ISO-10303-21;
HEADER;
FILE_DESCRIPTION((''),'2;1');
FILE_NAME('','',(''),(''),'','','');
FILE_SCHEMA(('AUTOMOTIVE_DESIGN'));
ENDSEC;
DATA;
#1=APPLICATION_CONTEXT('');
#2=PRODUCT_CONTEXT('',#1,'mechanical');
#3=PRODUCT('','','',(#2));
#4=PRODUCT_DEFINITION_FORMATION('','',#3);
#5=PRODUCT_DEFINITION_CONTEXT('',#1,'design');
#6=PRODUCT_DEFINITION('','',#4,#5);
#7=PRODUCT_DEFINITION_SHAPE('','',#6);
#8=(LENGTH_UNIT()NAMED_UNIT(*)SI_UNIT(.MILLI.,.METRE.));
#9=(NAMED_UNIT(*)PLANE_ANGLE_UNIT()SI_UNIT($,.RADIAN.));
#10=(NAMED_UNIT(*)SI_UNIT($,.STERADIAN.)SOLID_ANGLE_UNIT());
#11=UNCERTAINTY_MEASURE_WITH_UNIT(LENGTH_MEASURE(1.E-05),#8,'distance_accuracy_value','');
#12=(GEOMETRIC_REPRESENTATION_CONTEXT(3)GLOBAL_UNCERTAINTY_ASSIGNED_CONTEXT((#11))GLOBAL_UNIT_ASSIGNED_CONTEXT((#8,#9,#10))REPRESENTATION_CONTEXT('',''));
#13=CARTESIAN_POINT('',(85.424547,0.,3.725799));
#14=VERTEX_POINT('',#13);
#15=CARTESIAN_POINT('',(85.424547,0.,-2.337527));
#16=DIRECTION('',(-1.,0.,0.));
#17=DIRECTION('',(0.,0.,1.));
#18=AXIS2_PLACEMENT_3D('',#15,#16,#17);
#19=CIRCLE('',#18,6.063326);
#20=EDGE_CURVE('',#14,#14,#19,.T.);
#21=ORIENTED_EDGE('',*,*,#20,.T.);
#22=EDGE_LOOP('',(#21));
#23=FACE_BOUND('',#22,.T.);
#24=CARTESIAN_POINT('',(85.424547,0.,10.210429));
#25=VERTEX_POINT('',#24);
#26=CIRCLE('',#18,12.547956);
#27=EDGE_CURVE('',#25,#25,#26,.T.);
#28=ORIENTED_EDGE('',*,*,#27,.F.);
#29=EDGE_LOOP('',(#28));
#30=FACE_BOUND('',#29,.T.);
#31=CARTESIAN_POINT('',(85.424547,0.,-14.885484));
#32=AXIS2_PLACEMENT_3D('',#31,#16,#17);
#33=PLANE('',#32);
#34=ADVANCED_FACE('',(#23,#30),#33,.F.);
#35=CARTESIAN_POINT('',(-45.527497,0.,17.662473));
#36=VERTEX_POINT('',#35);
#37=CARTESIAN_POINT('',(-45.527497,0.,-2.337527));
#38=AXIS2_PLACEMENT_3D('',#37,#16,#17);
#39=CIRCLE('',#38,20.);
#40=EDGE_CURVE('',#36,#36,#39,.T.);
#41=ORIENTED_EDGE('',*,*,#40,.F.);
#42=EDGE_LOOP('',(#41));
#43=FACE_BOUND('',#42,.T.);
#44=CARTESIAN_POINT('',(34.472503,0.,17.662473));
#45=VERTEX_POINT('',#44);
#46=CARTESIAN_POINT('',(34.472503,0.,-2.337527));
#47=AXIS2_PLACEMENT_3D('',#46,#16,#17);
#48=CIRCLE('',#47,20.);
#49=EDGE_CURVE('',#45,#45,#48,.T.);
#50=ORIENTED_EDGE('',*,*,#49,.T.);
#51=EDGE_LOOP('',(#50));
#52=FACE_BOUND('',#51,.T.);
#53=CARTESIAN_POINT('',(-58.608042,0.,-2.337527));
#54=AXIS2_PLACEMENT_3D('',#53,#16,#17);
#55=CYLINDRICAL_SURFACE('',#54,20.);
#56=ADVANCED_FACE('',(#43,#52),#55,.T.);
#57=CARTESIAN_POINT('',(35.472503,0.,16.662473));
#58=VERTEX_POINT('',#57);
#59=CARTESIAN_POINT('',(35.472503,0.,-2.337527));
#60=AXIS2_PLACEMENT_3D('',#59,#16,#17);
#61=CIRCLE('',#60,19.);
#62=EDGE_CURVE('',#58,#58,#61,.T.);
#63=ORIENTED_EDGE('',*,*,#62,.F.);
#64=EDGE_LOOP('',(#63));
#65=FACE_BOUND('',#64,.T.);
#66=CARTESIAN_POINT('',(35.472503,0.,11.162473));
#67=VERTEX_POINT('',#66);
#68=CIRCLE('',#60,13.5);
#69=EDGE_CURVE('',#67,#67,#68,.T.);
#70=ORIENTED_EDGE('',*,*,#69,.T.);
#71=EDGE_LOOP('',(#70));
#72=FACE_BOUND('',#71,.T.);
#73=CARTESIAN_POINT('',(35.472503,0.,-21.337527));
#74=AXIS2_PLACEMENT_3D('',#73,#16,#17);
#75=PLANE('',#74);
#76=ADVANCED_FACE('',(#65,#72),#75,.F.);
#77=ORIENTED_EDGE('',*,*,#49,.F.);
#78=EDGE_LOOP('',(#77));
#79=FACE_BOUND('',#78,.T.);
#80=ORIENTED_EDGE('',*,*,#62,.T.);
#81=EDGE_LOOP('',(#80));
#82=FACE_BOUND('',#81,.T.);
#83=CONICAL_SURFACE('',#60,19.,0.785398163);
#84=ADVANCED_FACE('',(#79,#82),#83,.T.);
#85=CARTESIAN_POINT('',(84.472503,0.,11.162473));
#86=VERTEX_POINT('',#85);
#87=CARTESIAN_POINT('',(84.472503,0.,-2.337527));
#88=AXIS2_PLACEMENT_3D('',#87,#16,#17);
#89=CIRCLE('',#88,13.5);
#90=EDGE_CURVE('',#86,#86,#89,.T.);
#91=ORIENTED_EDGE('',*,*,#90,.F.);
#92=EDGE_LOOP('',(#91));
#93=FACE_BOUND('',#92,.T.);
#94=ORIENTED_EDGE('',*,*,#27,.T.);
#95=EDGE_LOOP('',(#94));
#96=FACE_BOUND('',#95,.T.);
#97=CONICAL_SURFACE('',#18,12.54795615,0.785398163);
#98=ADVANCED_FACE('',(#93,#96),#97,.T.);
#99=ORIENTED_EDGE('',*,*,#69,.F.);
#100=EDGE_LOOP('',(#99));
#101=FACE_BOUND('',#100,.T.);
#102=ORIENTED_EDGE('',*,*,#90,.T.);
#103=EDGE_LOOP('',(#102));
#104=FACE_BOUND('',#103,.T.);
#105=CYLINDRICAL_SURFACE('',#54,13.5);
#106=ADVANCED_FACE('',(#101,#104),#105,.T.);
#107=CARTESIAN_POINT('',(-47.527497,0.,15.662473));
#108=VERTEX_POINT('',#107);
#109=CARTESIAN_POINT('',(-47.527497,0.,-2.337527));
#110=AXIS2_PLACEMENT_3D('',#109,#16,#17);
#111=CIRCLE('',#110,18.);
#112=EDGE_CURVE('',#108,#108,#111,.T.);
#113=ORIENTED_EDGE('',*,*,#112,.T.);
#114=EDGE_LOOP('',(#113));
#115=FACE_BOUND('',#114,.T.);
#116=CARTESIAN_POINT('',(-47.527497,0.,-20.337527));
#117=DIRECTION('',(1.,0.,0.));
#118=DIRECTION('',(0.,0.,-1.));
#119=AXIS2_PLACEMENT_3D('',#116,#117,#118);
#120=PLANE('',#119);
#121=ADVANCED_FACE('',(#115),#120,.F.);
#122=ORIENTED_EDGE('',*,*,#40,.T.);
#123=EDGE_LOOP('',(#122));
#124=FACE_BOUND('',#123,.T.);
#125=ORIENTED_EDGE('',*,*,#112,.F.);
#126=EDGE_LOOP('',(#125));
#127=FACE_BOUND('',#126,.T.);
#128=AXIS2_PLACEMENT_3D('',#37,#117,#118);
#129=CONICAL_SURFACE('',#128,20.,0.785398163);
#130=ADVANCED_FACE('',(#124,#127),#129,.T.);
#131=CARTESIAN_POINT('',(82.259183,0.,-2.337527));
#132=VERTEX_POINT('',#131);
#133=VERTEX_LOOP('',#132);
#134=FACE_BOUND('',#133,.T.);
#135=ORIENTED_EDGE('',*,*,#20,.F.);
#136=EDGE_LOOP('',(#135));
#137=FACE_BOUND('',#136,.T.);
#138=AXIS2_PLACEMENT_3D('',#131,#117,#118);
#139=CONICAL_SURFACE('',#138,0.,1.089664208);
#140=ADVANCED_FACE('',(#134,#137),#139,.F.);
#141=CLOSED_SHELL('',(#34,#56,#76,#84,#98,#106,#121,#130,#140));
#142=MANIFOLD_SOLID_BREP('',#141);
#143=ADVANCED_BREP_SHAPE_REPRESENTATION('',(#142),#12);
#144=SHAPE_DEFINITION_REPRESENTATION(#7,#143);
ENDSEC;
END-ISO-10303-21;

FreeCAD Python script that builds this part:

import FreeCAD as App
import Part
import Sketcher

V = App.Vector
Q = App.Units.Quantity


def add_polygon(sketch, points):
    """Adds a closed chain of lines whose ends are joined by coincident constraints."""
    first, n = sketch.GeometryCount, len(points)
    for a, b in zip(points, points[1:] + points[:1]):
        sketch.addGeometry(Part.LineSegment(App.Vector(*a, 0), App.Vector(*b, 0)), False)
    for i in range(n):
        sketch.addConstraint(Sketcher.Constraint("Coincident", first + i, 2, first + (i + 1) % n, 1))

doc = App.newDocument("Part")
body = doc.addObject("PartDesign::Body", "Body")

# Sketch on XZ plane
sketch1 = doc.addObject("Sketcher::SketchObject", "Sketch")
body.addObject(sketch1)
sketch1.AttachmentSupport = (doc.XZ_Plane, [""])
sketch1.MapMode = "FlatFace"
add_polygon(sketch1, [(34.5, -22.3), (-45.5, -22.3), (-47.5, -20.3), (-47.5, -2.3), (82.3, -2.3), (85.4, -8.4), (85.4, -14.9), (84.5, -15.8), (35.5, -15.8), (35.5, -21.3)])  # lines 0-9
sketch1.addGeometry(Part.LineSegment(V(-47.5, -2.3, 0), V(85.4, -2.3, 0)), True)  # axis
sketch1.addConstraint([
    Sketcher.Constraint("Horizontal", 0),
    Sketcher.Constraint("Vertical", 2),
    Sketcher.Constraint("Horizontal", 3),
    Sketcher.Constraint("Vertical", 5),
    Sketcher.Constraint("Horizontal", 7),
    Sketcher.Constraint("Vertical", 8),
    Sketcher.Constraint("Horizontal", 10),
    Sketcher.Constraint("Coincident", 10, 1, 2, 2),
    Sketcher.Constraint("Perpendicular", 1, 6),
    Sketcher.Constraint("Parallel", 6, 9),
    Sketcher.Constraint("Vertical", 5, 2, 10, 2),
    Sketcher.Constraint("DistanceX", 0, 2, 0, 1, 80.0),
    Sketcher.Constraint("DistanceX", 7, 2, 7, 1, 49.0),
    Sketcher.Constraint("DistanceY", 2, 1, 2, 2, 18.0),
    Sketcher.Constraint("Angle", 1, Q("135 deg")),
    Sketcher.Constraint("DistanceY", 8, 2, 8, 1, 5.5),
    Sketcher.Constraint("DistanceX", 1, 2, 0, 2, 2.0),
    Sketcher.Constraint("DistanceX", 0, 2, 6, 2, 130.0),
    Sketcher.Constraint("DistanceX", 3, 1, 3, 2, 129.78668),
    Sketcher.Constraint("DistanceY", 5, 2, 5, 1, 6.48463),
    Sketcher.Constraint("DistanceX", 10, 1, 10, 2, 132.952044),
    Sketcher.Constraint("DistanceX", 0, 2, -1, 1, 45.527497),
    Sketcher.Constraint("DistanceY", 0, 2, -1, 1, 22.337527),
])
revolution = doc.addObject("PartDesign::Revolution", "Revolution")
body.addObject(revolution)
revolution.Profile = sketch1
revolution.ReferenceAxis = (sketch1, ["Axis0"])
revolution.Angle = 360

doc.recompute()
